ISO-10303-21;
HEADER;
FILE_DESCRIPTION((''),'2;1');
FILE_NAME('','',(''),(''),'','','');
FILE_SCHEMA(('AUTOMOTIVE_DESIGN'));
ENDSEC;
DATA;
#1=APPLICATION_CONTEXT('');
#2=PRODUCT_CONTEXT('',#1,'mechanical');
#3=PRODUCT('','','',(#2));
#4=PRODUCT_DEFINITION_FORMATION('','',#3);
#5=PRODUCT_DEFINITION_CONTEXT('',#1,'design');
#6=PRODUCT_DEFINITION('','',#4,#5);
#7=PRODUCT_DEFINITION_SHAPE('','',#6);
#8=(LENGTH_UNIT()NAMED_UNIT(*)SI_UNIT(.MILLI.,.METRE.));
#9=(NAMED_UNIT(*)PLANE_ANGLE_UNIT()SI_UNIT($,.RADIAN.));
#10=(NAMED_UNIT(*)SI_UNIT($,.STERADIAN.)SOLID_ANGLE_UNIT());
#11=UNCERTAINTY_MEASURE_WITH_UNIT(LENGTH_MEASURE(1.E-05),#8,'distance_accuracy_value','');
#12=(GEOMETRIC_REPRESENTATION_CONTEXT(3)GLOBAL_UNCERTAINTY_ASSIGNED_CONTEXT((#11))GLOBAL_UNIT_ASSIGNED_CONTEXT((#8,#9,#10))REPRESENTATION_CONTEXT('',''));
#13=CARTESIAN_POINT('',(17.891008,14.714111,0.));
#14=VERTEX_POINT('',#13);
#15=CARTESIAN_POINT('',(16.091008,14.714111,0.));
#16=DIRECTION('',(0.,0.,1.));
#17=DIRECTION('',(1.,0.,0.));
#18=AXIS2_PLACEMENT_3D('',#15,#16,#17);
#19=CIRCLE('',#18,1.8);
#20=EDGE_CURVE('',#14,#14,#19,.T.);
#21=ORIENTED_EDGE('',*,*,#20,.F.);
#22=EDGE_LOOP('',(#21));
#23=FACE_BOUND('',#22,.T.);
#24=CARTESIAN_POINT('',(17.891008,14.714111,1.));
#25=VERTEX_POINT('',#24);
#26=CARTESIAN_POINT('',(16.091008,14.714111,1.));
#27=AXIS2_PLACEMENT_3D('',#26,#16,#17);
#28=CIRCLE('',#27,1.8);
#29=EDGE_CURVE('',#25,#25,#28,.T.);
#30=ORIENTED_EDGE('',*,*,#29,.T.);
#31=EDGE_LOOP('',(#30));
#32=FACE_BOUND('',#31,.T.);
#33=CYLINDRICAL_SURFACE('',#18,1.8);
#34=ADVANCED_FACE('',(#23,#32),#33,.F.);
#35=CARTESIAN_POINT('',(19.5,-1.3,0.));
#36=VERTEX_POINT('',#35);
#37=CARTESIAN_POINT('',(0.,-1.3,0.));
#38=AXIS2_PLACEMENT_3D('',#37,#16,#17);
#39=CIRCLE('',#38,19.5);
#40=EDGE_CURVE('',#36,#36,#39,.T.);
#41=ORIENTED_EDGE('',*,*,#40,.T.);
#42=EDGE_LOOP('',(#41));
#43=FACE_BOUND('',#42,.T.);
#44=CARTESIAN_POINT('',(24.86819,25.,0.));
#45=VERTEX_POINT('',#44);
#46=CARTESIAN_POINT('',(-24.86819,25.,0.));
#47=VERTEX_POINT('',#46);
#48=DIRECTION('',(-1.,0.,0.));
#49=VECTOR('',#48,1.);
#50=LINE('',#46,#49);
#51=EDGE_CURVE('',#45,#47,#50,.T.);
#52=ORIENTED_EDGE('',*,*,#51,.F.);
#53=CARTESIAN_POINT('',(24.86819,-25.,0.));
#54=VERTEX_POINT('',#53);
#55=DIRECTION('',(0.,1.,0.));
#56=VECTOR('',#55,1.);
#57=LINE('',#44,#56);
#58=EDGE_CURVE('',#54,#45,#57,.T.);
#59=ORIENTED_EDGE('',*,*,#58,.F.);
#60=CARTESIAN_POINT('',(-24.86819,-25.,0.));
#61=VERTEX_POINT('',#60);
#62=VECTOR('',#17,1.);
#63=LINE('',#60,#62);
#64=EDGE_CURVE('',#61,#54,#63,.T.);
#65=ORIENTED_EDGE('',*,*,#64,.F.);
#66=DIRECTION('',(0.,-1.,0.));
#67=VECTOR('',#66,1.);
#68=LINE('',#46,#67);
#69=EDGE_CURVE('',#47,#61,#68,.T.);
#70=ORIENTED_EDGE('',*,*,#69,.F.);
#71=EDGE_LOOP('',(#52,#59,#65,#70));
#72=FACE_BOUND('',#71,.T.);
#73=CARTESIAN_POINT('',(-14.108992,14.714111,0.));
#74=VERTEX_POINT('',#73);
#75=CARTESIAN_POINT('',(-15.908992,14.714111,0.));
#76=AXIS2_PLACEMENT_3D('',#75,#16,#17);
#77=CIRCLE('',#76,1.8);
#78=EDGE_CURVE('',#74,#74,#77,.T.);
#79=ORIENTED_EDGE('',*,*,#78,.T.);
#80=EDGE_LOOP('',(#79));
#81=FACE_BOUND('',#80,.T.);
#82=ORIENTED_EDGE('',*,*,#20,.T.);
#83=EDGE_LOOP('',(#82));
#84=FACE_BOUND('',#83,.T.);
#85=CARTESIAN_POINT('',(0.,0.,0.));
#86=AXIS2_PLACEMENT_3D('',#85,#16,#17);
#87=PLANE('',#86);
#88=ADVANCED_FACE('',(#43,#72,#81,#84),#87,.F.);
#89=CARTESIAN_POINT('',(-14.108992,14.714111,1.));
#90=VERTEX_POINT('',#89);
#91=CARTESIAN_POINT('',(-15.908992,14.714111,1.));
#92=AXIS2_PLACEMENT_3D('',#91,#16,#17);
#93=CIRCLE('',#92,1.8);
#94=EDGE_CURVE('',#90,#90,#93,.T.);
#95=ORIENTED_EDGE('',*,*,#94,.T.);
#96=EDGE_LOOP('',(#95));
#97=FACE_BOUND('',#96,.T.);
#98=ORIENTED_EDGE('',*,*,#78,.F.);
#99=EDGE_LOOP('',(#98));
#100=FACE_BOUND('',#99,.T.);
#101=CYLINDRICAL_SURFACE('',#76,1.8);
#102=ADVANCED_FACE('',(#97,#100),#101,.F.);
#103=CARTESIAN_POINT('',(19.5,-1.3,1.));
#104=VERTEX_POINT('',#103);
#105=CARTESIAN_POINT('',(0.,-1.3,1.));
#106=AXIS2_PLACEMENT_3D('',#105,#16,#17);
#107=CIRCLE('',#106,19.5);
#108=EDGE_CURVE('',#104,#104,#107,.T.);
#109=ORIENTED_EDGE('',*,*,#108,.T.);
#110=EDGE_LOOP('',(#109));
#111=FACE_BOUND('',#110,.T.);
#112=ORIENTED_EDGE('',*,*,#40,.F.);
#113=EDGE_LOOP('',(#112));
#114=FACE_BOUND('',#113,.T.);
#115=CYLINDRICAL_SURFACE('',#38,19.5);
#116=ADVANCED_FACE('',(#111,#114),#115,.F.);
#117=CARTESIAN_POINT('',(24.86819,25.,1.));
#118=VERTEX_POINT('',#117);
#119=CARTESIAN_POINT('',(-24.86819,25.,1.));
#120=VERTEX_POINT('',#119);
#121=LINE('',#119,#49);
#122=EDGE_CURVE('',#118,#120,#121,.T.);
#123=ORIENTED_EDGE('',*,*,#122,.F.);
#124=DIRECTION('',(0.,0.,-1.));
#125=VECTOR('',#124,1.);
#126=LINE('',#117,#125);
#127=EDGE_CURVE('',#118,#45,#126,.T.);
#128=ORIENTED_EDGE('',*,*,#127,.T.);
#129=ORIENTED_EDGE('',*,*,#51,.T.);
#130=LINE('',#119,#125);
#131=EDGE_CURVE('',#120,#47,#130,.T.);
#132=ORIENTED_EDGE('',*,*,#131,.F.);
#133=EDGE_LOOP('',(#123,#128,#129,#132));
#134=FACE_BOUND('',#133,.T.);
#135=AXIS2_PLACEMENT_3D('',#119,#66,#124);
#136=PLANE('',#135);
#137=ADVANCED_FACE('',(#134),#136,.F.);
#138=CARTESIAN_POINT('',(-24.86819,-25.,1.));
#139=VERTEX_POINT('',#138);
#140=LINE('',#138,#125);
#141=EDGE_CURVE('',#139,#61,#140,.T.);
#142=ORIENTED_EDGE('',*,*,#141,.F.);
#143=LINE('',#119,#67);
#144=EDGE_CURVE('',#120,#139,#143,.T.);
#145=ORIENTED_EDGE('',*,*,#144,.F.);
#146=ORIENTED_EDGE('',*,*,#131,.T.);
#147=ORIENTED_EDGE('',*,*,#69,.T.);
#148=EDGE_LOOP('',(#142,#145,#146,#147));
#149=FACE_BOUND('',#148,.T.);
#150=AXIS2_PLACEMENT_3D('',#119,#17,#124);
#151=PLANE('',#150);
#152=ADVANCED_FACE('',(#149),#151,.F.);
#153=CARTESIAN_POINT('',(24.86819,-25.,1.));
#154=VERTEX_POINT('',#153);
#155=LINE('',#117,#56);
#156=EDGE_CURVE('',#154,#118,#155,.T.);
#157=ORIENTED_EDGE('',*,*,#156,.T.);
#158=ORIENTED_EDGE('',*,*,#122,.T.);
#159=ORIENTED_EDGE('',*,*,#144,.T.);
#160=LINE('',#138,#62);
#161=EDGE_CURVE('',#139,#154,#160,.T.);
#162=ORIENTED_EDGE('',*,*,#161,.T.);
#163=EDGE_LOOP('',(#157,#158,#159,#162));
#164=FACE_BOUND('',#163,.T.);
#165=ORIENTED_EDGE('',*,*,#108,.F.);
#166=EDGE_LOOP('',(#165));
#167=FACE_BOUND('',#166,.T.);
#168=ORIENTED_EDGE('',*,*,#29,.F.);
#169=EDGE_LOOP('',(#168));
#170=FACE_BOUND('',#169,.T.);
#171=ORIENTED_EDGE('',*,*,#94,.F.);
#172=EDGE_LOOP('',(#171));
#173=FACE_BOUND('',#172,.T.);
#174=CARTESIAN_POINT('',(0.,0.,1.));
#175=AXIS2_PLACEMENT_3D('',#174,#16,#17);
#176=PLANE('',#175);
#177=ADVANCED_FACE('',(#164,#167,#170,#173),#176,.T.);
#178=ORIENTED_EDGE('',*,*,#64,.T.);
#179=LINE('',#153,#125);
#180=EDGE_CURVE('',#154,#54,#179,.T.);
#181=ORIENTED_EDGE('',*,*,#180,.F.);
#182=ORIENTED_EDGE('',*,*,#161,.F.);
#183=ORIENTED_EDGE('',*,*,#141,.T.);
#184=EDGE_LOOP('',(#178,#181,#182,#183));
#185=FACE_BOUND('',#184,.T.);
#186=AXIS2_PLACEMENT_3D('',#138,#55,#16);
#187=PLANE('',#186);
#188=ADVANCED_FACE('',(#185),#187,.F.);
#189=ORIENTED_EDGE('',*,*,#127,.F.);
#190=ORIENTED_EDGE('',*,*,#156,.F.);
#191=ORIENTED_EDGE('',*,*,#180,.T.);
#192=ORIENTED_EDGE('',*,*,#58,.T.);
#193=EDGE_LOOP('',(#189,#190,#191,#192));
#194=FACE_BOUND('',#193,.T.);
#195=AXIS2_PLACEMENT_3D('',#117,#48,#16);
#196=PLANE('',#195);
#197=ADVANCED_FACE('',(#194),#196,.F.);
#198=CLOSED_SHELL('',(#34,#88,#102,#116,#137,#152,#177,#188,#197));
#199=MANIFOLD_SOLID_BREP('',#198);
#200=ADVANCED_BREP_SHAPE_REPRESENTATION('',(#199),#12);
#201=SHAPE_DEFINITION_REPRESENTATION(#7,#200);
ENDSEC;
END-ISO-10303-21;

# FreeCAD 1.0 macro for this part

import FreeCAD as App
import Part
import Sketcher

V = App.Vector

doc = App.newDocument("Part")
body = doc.addObject("PartDesign::Body", "Body")

sketch1 = body.newObject("Sketcher::SketchObject", "Sketch")
sketch1.AttachmentSupport = (doc.getObject("XY_Plane"), [""])
sketch1.MapMode = "FlatFace"
sketch1.addGeometry(Part.LineSegment(V(-24.86819, 25, 0), V(-24.86819, -25, 0)), False)
sketch1.addGeometry(Part.LineSegment(V(-24.86819, -25, 0), V(24.86819, -25, 0)), False)
sketch1.addGeometry(Part.LineSegment(V(24.86819, -25, 0), V(24.86819, 25, 0)), False)
sketch1.addGeometry(Part.LineSegment(V(24.86819, 25, 0), V(-24.86819, 25, 0)), False)
sketch1.addConstraint(Sketcher.Constraint("Coincident", 0, 2, 1, 1))
sketch1.addConstraint(Sketcher.Constraint("Coincident", 1, 2, 2, 1))
sketch1.addConstraint(Sketcher.Constraint("Coincident", 2, 2, 3, 1))
sketch1.addConstraint(Sketcher.Constraint("Coincident", 3, 2, 0, 1))
sketch1.addConstraint(Sketcher.Constraint("Vertical", 0))
sketch1.addConstraint(Sketcher.Constraint("Horizontal", 1))
sketch1.addConstraint(Sketcher.Constraint("Vertical", 2))
sketch1.addConstraint(Sketcher.Constraint("Horizontal", 3))
sketch1.addConstraint(Sketcher.Constraint("Symmetric", 0, 2, 2, 2, -1, 1))
sketch1.addConstraint(Sketcher.Constraint("DistanceY", 0, 2, 0, 1, 50.0))
sketch1.addConstraint(Sketcher.Constraint("DistanceX", 1, 1, 1, 2, 49.73638))
pad1 = body.newObject("PartDesign::Pad", "Pad")
pad1.Profile = sketch1
pad1.Length = 1

sketch2 = body.newObject("Sketcher::SketchObject", "Sketch001")
sketch2.AttachmentSupport = (doc.getObject("XY_Plane"), [""])
sketch2.MapMode = "FlatFace"
sketch2.AttachmentOffset = App.Placement(V(0, 0, 1), App.Rotation())
sketch2.addGeometry(Part.Circle(V(0, -1.3, 0), V(0, 0, 1), 19.5), False)
sketch2.addConstraint(Sketcher.Constraint("PointOnObject", 0, 3, -2))
sketch2.addConstraint(Sketcher.Constraint("Diameter", 0, 39.0))
sketch2.addConstraint(Sketcher.Constraint("DistanceY", 0, 3, -1, 1, 1.3))
pocket1 = body.newObject("PartDesign::Pocket", "Pocket")
pocket1.Profile = sketch2
pocket1.Length = 1

sketch3 = body.newObject("Sketcher::SketchObject", "Sketch002")
sketch3.AttachmentSupport = (doc.getObject("XY_Plane"), [""])
sketch3.MapMode = "FlatFace"
sketch3.AttachmentOffset = App.Placement(V(0, 0, 1), App.Rotation())
sketch3.addGeometry(Part.Circle(V(-15.908992, 14.714111, 0), V(0, 0, 1), 1.8), False)
sketch3.addGeometry(Part.Circle(V(16.091008, 14.714111, 0), V(0, 0, 1), 1.8), False)
sketch3.addConstraint(Sketcher.Constraint("Equal", 0, 1))
sketch3.addConstraint(Sketcher.Constraint("Horizontal", 0, 3, 1, 3))
sketch3.addConstraint(Sketcher.Constraint("Diameter", 0, 3.6))
sketch3.addConstraint(Sketcher.Constraint("DistanceX", 0, 3, 1, 3, 32.0))
sketch3.addConstraint(Sketcher.Constraint("DistanceY", -1, 1, 0, 3, 14.714111))
sketch3.addConstraint(Sketcher.Constraint("DistanceX", 0, 3, -1, 1, 15.908992))
pocket2 = body.newObject("PartDesign::Pocket", "Pocket001")
pocket2.Profile = sketch3
pocket2.Type = "ThroughAll"

doc.recompute()
